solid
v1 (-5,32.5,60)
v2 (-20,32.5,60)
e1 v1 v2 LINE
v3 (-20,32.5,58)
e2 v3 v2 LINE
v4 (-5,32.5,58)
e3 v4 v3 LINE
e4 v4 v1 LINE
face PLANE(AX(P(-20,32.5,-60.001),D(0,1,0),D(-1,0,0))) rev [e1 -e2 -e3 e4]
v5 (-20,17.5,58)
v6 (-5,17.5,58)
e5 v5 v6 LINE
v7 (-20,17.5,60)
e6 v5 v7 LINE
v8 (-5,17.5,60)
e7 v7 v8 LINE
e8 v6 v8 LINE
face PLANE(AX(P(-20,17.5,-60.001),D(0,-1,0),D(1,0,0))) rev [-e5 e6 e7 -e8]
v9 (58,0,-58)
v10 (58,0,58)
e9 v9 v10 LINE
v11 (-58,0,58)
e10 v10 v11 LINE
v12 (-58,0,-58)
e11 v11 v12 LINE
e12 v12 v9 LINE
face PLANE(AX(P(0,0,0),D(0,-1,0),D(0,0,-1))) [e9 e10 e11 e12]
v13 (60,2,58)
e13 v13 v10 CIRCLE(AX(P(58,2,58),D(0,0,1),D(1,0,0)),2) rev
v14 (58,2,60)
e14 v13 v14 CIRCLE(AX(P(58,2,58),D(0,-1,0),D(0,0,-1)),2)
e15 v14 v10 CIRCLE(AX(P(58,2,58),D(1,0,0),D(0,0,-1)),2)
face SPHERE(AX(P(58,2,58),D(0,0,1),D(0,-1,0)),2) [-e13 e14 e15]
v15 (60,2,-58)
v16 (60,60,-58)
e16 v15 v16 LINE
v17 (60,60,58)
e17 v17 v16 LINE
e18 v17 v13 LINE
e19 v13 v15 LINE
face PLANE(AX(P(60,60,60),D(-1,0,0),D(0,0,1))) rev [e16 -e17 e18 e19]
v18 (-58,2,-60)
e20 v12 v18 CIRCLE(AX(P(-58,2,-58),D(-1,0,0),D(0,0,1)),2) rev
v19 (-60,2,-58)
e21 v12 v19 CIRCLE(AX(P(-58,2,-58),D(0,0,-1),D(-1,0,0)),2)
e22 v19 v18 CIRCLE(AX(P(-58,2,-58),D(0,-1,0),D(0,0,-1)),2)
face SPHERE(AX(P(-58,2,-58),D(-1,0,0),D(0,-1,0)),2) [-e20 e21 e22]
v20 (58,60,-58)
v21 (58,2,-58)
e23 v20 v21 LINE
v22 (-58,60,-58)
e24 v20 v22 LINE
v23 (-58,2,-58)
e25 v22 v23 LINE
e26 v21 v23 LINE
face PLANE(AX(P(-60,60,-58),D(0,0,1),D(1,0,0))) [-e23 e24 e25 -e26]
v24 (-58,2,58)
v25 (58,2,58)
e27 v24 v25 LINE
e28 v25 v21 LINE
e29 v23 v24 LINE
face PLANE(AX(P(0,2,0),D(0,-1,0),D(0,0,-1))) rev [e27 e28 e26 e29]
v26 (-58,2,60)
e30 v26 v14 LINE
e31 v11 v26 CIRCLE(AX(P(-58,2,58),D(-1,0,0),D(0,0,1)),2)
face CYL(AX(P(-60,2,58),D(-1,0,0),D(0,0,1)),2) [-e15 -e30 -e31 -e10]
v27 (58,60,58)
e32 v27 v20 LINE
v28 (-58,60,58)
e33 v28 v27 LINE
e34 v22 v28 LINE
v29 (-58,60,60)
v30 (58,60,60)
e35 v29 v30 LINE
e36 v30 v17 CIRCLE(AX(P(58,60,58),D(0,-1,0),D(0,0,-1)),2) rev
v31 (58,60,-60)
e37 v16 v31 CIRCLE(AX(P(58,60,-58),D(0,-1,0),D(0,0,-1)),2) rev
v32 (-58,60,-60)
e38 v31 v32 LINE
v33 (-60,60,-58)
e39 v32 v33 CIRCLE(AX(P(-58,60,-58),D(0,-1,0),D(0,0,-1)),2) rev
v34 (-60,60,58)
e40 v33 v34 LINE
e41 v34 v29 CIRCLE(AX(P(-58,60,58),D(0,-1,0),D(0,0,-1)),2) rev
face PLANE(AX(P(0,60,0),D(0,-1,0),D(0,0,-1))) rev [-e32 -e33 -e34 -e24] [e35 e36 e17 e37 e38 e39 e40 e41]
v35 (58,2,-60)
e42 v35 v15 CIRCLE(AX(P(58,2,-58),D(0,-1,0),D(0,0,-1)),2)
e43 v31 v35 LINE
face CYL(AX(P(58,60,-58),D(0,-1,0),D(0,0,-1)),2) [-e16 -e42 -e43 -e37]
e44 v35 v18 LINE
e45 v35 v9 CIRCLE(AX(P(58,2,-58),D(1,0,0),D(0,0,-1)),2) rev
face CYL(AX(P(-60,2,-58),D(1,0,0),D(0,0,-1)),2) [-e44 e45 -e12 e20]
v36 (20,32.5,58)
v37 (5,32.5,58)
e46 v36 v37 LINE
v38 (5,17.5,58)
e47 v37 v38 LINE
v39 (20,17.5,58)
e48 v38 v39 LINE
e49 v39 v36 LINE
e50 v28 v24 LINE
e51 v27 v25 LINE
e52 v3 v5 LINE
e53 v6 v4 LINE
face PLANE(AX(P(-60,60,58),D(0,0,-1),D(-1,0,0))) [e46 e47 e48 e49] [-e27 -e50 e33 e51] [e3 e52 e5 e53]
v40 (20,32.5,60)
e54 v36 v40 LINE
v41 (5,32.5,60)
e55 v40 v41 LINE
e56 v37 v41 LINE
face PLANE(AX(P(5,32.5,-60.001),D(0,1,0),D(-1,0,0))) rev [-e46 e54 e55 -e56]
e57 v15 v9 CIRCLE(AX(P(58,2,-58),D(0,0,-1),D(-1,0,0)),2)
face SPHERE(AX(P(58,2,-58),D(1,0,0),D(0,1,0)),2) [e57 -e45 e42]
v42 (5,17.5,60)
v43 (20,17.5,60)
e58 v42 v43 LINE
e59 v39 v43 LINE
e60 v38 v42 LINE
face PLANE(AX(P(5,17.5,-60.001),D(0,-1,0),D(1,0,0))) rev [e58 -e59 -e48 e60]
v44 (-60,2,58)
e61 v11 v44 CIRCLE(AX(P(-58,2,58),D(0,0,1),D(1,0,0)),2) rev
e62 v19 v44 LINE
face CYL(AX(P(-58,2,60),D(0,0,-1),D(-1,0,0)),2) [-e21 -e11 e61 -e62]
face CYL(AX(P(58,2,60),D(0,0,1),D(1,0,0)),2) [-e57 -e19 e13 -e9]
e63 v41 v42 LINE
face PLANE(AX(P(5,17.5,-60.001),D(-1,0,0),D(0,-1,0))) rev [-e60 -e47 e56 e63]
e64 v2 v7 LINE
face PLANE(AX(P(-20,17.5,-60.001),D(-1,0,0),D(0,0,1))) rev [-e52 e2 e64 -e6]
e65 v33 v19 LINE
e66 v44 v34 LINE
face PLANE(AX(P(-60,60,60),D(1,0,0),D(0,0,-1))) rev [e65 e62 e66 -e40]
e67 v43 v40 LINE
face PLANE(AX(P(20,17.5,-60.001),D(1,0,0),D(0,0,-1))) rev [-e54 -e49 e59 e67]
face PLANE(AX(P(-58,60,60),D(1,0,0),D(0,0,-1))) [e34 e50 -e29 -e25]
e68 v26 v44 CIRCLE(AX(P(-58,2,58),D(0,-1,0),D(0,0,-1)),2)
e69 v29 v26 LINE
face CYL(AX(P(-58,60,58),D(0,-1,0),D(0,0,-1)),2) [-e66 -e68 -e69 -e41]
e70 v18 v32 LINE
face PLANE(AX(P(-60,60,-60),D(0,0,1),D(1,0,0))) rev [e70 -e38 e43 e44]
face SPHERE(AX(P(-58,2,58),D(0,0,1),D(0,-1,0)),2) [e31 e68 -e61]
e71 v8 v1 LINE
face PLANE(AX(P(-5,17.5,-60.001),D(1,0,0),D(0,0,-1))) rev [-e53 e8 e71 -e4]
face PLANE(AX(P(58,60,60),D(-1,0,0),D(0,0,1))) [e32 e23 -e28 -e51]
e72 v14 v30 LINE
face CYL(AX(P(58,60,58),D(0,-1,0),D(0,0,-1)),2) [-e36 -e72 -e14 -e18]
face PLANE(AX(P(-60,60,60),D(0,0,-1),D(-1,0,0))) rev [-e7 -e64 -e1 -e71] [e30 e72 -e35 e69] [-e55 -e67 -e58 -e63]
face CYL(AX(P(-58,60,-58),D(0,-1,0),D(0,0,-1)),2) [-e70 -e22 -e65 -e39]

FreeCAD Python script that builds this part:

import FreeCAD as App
import Part
import Sketcher
Q = App.Units.Quantity


def edges_at(feature, points):
    """Names of the edges that pass closest to the given points."""
    edges = feature.Shape.Edges
    near = lambda p: min(range(len(edges)), key=lambda i: edges[i].distToShape(Part.Vertex(*p))[0])
    return sorted({f"Edge{near(p) + 1}" for p in points})


def faces_at(feature, points):
    """Names of the faces that lie closest to the given points."""
    faces = feature.Shape.Faces
    near = lambda p: min(range(len(faces)), key=lambda i: faces[i].distToShape(Part.Vertex(*p))[0])
    return sorted({f"Face{near(p) + 1}" for p in points})

doc = App.newDocument("Part")
params = doc.addObject("Spreadsheet::Sheet", "Params")
for row, (alias, value) in enumerate([
    ("sketch1_width", "120 mm"),
    ("pad1_length", "60 mm"),
    ("thickness_wall", "2 mm"),
    ("fillet_radius", "2 mm"),
    ("sketch2_width", "15 mm"),
    ("sketch3_width", "15 mm"),
], start=1):
    params.set(f"A{row}", alias)
    params.set(f"B{row}", "=" + value)
    params.setAlias(f"B{row}", alias)

body = doc.addObject("PartDesign::Body", "Body")

sketch1 = body.newObject("Sketcher::SketchObject", "Sketch")
sketch1.AttachmentSupport = (doc.getObject("XZ_Plane"), [""])
sketch1.MapMode = "FlatFace"
sketch1.addGeometry([
    Part.LineSegment(App.Vector(-60, -60, 0), App.Vector(-60, 60, 0)),
    Part.LineSegment(App.Vector(-60, 60, 0), App.Vector(60, 60, 0)),
    Part.LineSegment(App.Vector(60, 60, 0), App.Vector(60, -60, 0)),
    Part.LineSegment(App.Vector(60, -60, 0), App.Vector(-60, -60, 0)),
], False)
sketch1.addConstraint([
    Sketcher.Constraint("Coincident", 0, 2, 1, 1),
    Sketcher.Constraint("Coincident", 1, 2, 2, 1),
    Sketcher.Constraint("Coincident", 2, 2, 3, 1),
    Sketcher.Constraint("Coincident", 3, 2, 0, 1),
    Sketcher.Constraint("Vertical", 0),
    Sketcher.Constraint("Horizontal", 1),
    Sketcher.Constraint("Vertical", 2),
    Sketcher.Constraint("Horizontal", 3),
    Sketcher.Constraint("Symmetric", 0, 2, 2, 2, -1, 1),
    Sketcher.Constraint("Equal", 3, 0),
    Sketcher.Constraint("DistanceX", 1, 1, 1, 2, Q("120 mm")),
])
sketch1.setExpression("Constraints[10]", "Params.sketch1_width")
pad1 = body.newObject("PartDesign::Pad", "Pad")
pad1.Profile = sketch1
pad1.setExpression("Length", "Params.pad1_length")
pad1.Reversed = True
doc.recompute()

thickness = body.newObject("PartDesign::Thickness", "Thickness")
thickness.Base = (pad1, faces_at(pad1, [(0, 60, 0)]))
thickness.setExpression("Value", "Params.thickness_wall")
thickness.Reversed = True
thickness.Join = "Intersection"
doc.recompute()

fillet = body.newObject("PartDesign::Fillet", "Fillet")
fillet.Base = (thickness, edges_at(thickness, [
    (0, 0, 60),
    (-60, 0, 0),
    (0, 0, -60),
    (60, 0, 0),
    (60, 30, 60),
    (-60, 30, 60),
    (-60, 30, -60),
    (60, 30, -60),
]))
fillet.setExpression("Radius", "Params.fillet_radius")

sketch2 = body.newObject("Sketcher::SketchObject", "Sketch001")
sketch2.AttachmentSupport = (doc.getObject("XY_Plane"), [""])
sketch2.MapMode = "FlatFace"
sketch2.AttachmentOffset = App.Placement(App.Vector(0, 0, 60), App.Rotation())
sketch2.addGeometry([
    Part.LineSegment(App.Vector(-20, 32, 0), App.Vector(-20, 18, 0)),
    Part.LineSegment(App.Vector(-20, 18, 0), App.Vector(-5, 18, 0)),
    Part.LineSegment(App.Vector(-5, 18, 0), App.Vector(-5, 32, 0)),
    Part.LineSegment(App.Vector(-5, 32, 0), App.Vector(-20, 32, 0)),
], False)
sketch2.addConstraint([
    Sketcher.Constraint("Coincident", 0, 2, 1, 1),
    Sketcher.Constraint("Coincident", 1, 2, 2, 1),
    Sketcher.Constraint("Coincident", 2, 2, 3, 1),
    Sketcher.Constraint("Coincident", 3, 2, 0, 1),
    Sketcher.Constraint("Vertical", 0),
    Sketcher.Constraint("Horizontal", 1),
    Sketcher.Constraint("Vertical", 2),
    Sketcher.Constraint("Horizontal", 3),
    Sketcher.Constraint("Equal", 3, 0),
    Sketcher.Constraint("DistanceX", 1, 1, 1, 2, Q("15 mm")),
    Sketcher.Constraint("DistanceX", 0, 2, -1, 1, Q("20 mm")),
    Sketcher.Constraint("DistanceY", -1, 1, 0, 2, Q("17.5 mm")),
])
sketch2.setExpression("Constraints[9]", "Params.sketch2_width")
pocket1 = body.newObject("PartDesign::Pocket", "Pocket")
pocket1.Profile = sketch2
pocket1.Type = "UpToFirst"

sketch3 = body.newObject("Sketcher::SketchObject", "Sketch002")
sketch3.AttachmentSupport = (doc.getObject("XY_Plane"), [""])
sketch3.MapMode = "FlatFace"
sketch3.AttachmentOffset = App.Placement(App.Vector(0, 0, 60), App.Rotation())
sketch3.addGeometry([
    Part.LineSegment(App.Vector(5, 32, 0), App.Vector(5, 18, 0)),
    Part.LineSegment(App.Vector(5, 18, 0), App.Vector(20, 18, 0)),
    Part.LineSegment(App.Vector(20, 18, 0), App.Vector(20, 32, 0)),
    Part.LineSegment(App.Vector(20, 32, 0), App.Vector(5, 32, 0)),
], False)
sketch3.addConstraint([
    Sketcher.Constraint("Coincident", 0, 2, 1, 1),
    Sketcher.Constraint("Coincident", 1, 2, 2, 1),
    Sketcher.Constraint("Coincident", 2, 2, 3, 1),
    Sketcher.Constraint("Coincident", 3, 2, 0, 1),
    Sketcher.Constraint("Vertical", 0),
    Sketcher.Constraint("Horizontal", 1),
    Sketcher.Constraint("Vertical", 2),
    Sketcher.Constraint("Horizontal", 3),
    Sketcher.Constraint("Equal", 3, 0),
    Sketcher.Constraint("DistanceX", 1, 1, 1, 2, Q("15 mm")),
    Sketcher.Constraint("DistanceX", -1, 1, 0, 2, Q("5 mm")),
    Sketcher.Constraint("DistanceY", -1, 1, 0, 2, Q("17.5 mm")),
])
sketch3.setExpression("Constraints[9]", "Params.sketch3_width")
pocket2 = body.newObject("PartDesign::Pocket", "Pocket001")
pocket2.Profile = sketch3
pocket2.Type = "UpToFirst"

doc.recompute()
